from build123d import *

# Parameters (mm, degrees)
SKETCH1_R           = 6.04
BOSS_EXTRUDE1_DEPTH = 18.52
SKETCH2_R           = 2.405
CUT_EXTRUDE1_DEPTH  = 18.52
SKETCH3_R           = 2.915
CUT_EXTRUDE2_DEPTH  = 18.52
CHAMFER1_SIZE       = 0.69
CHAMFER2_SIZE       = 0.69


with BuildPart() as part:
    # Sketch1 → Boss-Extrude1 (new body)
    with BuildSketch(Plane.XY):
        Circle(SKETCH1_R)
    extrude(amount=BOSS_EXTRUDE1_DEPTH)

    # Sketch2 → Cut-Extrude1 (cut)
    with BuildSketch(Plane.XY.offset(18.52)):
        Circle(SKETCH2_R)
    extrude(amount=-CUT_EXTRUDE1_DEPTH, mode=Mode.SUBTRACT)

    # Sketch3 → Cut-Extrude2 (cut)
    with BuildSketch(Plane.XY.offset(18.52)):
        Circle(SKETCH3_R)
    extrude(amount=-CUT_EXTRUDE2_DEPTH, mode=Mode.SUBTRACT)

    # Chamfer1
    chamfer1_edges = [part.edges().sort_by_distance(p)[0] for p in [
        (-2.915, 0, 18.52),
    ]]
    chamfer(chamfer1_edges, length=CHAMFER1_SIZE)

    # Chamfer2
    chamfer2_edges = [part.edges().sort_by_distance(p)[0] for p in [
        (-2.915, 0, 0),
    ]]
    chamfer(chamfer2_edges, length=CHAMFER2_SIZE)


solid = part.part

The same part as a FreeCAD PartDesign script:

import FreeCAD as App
import Part
import Sketcher


def edges_at(feature, points):
    """Names of the edges that pass closest to the given points."""
    edges = feature.Shape.Edges
    near = lambda p: min(range(len(edges)), key=lambda i: edges[i].distToShape(Part.Vertex(*p))[0])
    return sorted({f"Edge{near(p) + 1}" for p in points})

doc = App.newDocument("Part")
body = doc.addObject("PartDesign::Body", "Body")

# Sketch on XY plane
sketch1 = body.newObject("Sketcher::SketchObject", "Sketch")
sketch1.AttachmentSupport = (doc.getObject("XY_Plane"), [""])
sketch1.MapMode = "FlatFace"
sketch1.addGeometry(Part.Circle(App.Vector(0, 0, 0), App.Vector(0, 0, 1), 6.04), False)
sketch1.addConstraint([
    Sketcher.Constraint("Coincident", 0, 3, -1, 1),
    Sketcher.Constraint("Diameter", 0, 12.08),
])
pad1 = body.newObject("PartDesign::Pad", "Pad")
pad1.Profile = sketch1
pad1.Length = 18.52

# Sketch on XY plane
sketch2 = body.newObject("Sketcher::SketchObject", "Sketch001")
sketch2.AttachmentSupport = (doc.getObject("XY_Plane"), [""])
sketch2.MapMode = "FlatFace"
sketch2.AttachmentOffset = App.Placement(App.Vector(0, 0, 18.52), App.Rotation())
sketch2.addGeometry(Part.Circle(App.Vector(0, 0, 0), App.Vector(0, 0, 1), 2.405), False)
sketch2.addConstraint([
    Sketcher.Constraint("Coincident", 0, 3, -1, 1),
    Sketcher.Constraint("Diameter", 0, 4.81),
])
pocket1 = body.newObject("PartDesign::Pocket", "Pocket")
pocket1.Profile = sketch2
pocket1.Length = 18.52

# Sketch on XY plane
sketch3 = body.newObject("Sketcher::SketchObject", "Sketch002")
sketch3.AttachmentSupport = (doc.getObject("XY_Plane"), [""])
sketch3.MapMode = "FlatFace"
sketch3.AttachmentOffset = App.Placement(App.Vector(0, 0, 18.52), App.Rotation())
sketch3.addGeometry(Part.Circle(App.Vector(0, 0, 0), App.Vector(0, 0, 1), 2.915), False)
sketch3.addConstraint([
    Sketcher.Constraint("Coincident", 0, 3, -1, 1),
    Sketcher.Constraint("Diameter", 0, 5.83),
])
pocket2 = body.newObject("PartDesign::Pocket", "Pocket001")
pocket2.Profile = sketch3
pocket2.Length = 18.52
doc.recompute()

chamfer = body.newObject("PartDesign::Chamfer", "Chamfer")
chamfer.Base = (pocket2, edges_at(pocket2, [(-2.915, 0, 18.52)]))
chamfer.Size = 0.69
doc.recompute()

chamfer2 = body.newObject("PartDesign::Chamfer", "Chamfer001")
chamfer2.Base = (chamfer, edges_at(chamfer, [(-2.915, 0, 0)]))
chamfer2.Size = 0.69

doc.recompute()
